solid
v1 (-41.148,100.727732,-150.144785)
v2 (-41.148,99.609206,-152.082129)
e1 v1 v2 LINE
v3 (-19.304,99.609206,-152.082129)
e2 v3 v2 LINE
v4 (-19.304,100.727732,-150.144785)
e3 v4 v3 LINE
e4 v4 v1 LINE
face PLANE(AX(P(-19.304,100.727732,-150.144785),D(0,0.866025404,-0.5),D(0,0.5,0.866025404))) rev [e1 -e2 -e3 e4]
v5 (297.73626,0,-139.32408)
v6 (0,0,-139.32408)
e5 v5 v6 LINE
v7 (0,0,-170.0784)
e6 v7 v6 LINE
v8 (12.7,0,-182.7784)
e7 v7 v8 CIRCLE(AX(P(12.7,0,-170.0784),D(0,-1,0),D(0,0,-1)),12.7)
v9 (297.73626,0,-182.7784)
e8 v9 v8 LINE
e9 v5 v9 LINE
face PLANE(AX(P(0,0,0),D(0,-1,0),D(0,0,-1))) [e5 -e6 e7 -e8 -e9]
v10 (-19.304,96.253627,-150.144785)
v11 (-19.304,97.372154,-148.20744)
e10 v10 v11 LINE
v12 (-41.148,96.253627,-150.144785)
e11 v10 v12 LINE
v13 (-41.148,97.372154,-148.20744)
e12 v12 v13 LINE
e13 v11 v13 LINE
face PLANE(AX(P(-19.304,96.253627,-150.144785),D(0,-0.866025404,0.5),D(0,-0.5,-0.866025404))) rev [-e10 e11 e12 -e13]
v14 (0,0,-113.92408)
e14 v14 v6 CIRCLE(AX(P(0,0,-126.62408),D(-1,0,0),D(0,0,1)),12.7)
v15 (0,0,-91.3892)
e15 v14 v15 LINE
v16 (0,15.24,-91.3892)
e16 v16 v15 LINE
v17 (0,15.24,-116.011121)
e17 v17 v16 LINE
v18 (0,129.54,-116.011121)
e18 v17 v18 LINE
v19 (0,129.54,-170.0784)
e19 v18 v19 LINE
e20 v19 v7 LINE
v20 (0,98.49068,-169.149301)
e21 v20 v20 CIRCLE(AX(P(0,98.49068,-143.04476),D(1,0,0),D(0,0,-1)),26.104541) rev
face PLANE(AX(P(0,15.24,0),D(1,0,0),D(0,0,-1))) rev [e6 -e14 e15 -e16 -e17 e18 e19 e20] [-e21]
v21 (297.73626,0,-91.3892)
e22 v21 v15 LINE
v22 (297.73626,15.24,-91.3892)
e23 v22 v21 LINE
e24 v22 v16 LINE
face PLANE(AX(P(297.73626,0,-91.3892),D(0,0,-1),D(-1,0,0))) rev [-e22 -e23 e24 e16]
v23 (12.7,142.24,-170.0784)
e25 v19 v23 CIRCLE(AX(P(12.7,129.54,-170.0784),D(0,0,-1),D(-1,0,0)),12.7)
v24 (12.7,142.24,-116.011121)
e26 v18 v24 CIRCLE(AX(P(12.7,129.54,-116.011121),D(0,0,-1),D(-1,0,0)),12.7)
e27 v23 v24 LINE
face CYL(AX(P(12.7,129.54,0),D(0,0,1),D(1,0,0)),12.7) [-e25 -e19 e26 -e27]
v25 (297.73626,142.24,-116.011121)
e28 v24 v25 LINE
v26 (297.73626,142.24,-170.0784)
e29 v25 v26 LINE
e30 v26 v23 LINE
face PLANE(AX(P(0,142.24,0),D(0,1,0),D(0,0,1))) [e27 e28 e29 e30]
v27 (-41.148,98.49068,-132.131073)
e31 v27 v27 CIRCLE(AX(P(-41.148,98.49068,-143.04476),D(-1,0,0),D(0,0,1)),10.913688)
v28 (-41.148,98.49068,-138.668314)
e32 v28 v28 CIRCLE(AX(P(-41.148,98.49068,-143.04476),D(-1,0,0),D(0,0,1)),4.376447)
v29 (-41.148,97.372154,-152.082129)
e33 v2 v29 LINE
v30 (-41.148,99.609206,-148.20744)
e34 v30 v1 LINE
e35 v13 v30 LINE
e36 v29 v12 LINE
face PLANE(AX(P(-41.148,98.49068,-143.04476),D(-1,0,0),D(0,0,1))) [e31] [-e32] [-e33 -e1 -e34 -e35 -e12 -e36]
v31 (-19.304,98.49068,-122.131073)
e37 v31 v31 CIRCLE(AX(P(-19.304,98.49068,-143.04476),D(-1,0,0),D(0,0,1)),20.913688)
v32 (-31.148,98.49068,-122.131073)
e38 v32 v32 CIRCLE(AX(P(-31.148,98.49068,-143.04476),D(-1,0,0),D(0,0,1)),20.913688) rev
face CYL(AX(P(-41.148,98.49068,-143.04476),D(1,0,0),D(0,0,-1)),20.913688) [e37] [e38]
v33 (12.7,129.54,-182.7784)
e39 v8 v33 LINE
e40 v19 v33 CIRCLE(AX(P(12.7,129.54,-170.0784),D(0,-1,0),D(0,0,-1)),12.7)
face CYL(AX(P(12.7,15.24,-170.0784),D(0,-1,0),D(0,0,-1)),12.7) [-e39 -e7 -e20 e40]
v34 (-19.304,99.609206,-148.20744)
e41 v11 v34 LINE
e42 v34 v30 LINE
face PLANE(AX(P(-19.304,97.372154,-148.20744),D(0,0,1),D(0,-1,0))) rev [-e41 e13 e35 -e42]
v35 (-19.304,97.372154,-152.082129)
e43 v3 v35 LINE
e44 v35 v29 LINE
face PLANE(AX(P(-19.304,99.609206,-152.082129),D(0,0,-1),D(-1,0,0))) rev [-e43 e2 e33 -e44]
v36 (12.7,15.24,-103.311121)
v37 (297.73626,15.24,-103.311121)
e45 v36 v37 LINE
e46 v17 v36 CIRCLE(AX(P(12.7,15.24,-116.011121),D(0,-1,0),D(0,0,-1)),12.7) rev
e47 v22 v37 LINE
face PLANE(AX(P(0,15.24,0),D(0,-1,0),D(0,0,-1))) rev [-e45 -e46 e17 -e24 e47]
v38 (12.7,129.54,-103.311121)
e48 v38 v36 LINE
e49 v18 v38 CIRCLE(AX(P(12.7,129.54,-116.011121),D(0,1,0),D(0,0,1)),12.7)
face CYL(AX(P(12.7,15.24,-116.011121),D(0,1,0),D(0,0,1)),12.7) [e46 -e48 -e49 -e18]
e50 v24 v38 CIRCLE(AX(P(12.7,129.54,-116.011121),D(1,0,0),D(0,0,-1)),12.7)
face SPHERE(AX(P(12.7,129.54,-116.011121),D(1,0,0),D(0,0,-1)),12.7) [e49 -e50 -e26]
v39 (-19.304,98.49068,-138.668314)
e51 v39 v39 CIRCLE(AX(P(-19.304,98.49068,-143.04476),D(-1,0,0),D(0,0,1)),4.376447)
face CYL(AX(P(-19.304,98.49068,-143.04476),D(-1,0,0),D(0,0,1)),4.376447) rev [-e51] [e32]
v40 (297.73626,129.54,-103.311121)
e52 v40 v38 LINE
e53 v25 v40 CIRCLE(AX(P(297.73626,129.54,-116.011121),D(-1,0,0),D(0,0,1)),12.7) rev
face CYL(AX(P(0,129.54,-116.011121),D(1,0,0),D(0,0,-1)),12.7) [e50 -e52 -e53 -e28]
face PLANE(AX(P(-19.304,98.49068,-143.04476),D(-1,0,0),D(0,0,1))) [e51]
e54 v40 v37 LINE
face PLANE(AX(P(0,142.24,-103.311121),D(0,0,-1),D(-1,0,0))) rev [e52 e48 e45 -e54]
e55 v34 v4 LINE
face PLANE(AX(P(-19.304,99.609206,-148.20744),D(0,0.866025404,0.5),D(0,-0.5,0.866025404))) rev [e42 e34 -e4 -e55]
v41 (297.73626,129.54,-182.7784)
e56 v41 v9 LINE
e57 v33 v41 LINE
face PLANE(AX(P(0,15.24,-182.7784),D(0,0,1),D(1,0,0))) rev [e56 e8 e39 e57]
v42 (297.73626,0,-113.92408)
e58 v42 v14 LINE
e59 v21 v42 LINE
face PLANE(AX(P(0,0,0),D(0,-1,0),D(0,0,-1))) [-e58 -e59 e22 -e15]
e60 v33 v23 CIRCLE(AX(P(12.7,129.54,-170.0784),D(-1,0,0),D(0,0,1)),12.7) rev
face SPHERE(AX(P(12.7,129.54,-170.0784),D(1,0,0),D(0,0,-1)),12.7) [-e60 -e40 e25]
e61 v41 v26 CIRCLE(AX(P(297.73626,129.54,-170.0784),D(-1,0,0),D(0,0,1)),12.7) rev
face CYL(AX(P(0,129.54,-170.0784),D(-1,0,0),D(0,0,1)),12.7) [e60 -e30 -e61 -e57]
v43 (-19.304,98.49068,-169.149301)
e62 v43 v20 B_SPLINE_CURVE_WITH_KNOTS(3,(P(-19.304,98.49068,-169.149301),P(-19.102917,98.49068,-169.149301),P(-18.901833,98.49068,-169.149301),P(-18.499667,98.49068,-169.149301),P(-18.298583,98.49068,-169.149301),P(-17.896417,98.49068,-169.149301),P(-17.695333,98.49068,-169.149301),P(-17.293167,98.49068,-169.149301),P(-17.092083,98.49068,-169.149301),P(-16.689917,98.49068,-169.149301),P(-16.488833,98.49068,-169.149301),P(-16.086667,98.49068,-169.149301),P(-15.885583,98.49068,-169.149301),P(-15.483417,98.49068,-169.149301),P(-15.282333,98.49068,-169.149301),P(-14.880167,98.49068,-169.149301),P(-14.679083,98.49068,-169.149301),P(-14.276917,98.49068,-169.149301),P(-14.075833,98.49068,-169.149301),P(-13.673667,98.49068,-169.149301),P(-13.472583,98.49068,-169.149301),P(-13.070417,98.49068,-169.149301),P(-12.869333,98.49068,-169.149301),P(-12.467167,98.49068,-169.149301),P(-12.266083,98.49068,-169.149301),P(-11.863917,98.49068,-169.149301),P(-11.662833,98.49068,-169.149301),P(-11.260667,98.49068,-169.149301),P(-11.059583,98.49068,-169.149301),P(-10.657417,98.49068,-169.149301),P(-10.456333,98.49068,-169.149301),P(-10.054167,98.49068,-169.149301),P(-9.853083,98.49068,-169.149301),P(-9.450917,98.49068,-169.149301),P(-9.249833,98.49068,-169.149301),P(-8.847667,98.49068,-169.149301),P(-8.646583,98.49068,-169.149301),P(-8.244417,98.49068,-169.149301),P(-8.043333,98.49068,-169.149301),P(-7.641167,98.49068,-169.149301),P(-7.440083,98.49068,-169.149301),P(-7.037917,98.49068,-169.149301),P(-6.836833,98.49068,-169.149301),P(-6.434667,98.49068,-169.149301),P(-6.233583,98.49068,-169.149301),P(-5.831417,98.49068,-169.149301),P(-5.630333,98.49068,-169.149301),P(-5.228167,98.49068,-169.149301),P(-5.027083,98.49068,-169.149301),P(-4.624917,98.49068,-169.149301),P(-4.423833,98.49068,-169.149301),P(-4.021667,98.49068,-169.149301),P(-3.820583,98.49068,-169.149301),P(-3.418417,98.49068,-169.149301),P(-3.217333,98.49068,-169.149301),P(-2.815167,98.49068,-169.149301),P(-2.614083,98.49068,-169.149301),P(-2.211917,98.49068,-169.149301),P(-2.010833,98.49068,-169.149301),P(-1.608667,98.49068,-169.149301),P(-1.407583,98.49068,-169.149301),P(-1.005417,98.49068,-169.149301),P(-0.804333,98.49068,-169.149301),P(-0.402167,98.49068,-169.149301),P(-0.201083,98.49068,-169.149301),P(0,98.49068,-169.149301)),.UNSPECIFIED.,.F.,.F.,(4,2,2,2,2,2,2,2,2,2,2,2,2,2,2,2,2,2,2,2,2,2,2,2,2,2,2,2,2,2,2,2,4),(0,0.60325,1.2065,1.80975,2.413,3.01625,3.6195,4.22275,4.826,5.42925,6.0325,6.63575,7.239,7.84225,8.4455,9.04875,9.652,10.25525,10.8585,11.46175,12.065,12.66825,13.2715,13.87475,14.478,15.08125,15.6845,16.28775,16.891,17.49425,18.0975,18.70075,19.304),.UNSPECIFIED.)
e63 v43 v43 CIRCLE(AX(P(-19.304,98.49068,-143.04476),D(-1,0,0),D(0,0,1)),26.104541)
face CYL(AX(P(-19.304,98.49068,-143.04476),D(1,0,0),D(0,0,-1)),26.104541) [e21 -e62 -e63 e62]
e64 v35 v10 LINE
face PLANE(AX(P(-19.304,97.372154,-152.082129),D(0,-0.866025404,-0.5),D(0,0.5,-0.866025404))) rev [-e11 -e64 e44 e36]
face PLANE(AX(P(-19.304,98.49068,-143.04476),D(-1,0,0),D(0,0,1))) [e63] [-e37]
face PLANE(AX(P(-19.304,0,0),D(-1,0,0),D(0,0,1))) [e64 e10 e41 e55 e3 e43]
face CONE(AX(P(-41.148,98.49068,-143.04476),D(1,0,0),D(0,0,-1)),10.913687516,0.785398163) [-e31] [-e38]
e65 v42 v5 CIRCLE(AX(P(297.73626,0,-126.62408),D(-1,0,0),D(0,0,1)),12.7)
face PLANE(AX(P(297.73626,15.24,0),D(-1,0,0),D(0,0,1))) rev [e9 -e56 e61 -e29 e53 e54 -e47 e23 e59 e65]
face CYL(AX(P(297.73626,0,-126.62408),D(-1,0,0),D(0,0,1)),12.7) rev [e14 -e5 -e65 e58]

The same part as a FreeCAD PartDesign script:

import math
import FreeCAD as App
import Part
import Sketcher

V = App.Vector
Q = App.Units.Quantity


def edges_at(feature, points):
    """Names of the edges that pass closest to the given points."""
    edges = feature.Shape.Edges
    near = lambda p: min(range(len(edges)), key=lambda i: edges[i].distToShape(Part.Vertex(*p))[0])
    return sorted({f"Edge{near(p) + 1}" for p in points})


def add_polygon(sketch, points):
    """Adds a closed chain of lines whose ends are joined by coincident constraints."""
    first, n = sketch.GeometryCount, len(points)
    for a, b in zip(points, points[1:] + points[:1]):
        sketch.addGeometry(Part.LineSegment(App.Vector(*a, 0), App.Vector(*b, 0)), False)
    for i in range(n):
        sketch.addConstraint(Sketcher.Constraint("Coincident", first + i, 2, first + (i + 1) % n, 1))

doc = App.newDocument("Part")
body = doc.addObject("PartDesign::Body", "Body")

# Sketch on XZ plane
sketch1 = doc.addObject("Sketcher::SketchObject", "Sketch")
body.addObject(sketch1)
sketch1.AttachmentSupport = (doc.XZ_Plane, [""])
sketch1.MapMode = "FlatFace"
add_polygon(sketch1, [(0, -182.7784), (0, 0), (297.73626, 0), (297.73626, -182.7784)])  # lines 0-3
sketch1.addConstraint(Sketcher.Constraint("Vertical", 0))
sketch1.addConstraint(Sketcher.Constraint("Horizontal", 1))
sketch1.addConstraint(Sketcher.Constraint("Vertical", 2))
sketch1.addConstraint(Sketcher.Constraint("Horizontal", 3))
sketch1.addConstraint(Sketcher.Constraint("Coincident", 0, 2, -1, 1))
sketch1.addConstraint(Sketcher.Constraint("DistanceY", 0, 1, 0, 2, Q("7.196 in")))
sketch1.addConstraint(Sketcher.Constraint("DistanceX", 1, 1, 1, 2, Q("11.7219 in")))
pad1 = doc.addObject("PartDesign::Pad", "Pad")
body.addObject(pad1)
pad1.Profile = sketch1
pad1.Length = Q("0.6 in")
pad1.Reversed = True

# Sketch on YZ plane
sketch2 = doc.addObject("Sketcher::SketchObject", "Sketch001")
body.addObject(sketch2)
sketch2.AttachmentSupport = (doc.YZ_Plane, [""])
sketch2.MapMode = "FlatFace"
sketch2.addGeometry(Part.ArcOfCircle(Part.Circle(V(0, -56.15432, 0), V(0, 0, 1), 12.7), math.radians(-90), math.radians(90)), False)
sketch2.addGeometry(Part.LineSegment(V(0, -68.85432, 0), V(0, -43.45432, 0)), False)
sketch2.addGeometry(Part.ArcOfCircle(Part.Circle(V(0, -126.62408, 0), V(0, 0, 1), 12.7), math.radians(-90), math.radians(90)), False)
sketch2.addGeometry(Part.LineSegment(V(0, -139.32408, 0), V(0, -113.92408, 0)), False)
sketch2.addConstraint(Sketcher.Constraint("Coincident", 0, 1, 1, 1))
sketch2.addConstraint(Sketcher.Constraint("Coincident", 1, 2, 0, 2))
sketch2.addConstraint(Sketcher.Constraint("Coincident", 2, 1, 3, 1))
sketch2.addConstraint(Sketcher.Constraint("Coincident", 3, 2, 2, 2))
sketch2.addConstraint(Sketcher.Constraint("Vertical", 1))
sketch2.addConstraint(Sketcher.Constraint("Vertical", 3))
sketch2.addConstraint(Sketcher.Constraint("Equal", 0, 2))
sketch2.addConstraint(Sketcher.Constraint("PointOnObject", 0, 3, -2))
sketch2.addConstraint(Sketcher.Constraint("PointOnObject", 2, 3, -2))
sketch2.addConstraint(Sketcher.Constraint("PointOnObject", 0, 1, -2))
sketch2.addConstraint(Sketcher.Constraint("PointOnObject", 2, 1, -2))
sketch2.addConstraint(Sketcher.Constraint("Radius", 0, Q("0.5 in")))
sketch2.addConstraint(Sketcher.Constraint("DistanceY", 0, 3, -1, 1, Q("2.2108 in")))
sketch2.addConstraint(Sketcher.Constraint("DistanceY", 2, 3, -1, 1, Q("4.9852 in")))
pocket1 = doc.addObject("PartDesign::Pocket", "Pocket")
body.addObject(pocket1)
pocket1.Profile = sketch2
pocket1.Type = "ThroughAll"
pocket1.Reversed = True

# Sketch on YZ plane
sketch3 = doc.addObject("Sketcher::SketchObject", "Sketch002")
body.addObject(sketch3)
sketch3.AttachmentSupport = (doc.YZ_Plane, [""])
sketch3.MapMode = "FlatFace"
add_polygon(sketch3, [(15.24, -91.3892), (0, -91.3892), (0, 0), (15.24, 0)])  # lines 0-3
sketch3.addConstraint(Sketcher.Constraint("Horizontal", 0))
sketch3.addConstraint(Sketcher.Constraint("Vertical", 1))
sketch3.addConstraint(Sketcher.Constraint("Horizontal", 2))
sketch3.addConstraint(Sketcher.Constraint("Vertical", 3))
sketch3.addConstraint(Sketcher.Constraint("Coincident", 1, 2, -1, 1))
sketch3.addConstraint(Sketcher.Constraint("DistanceX", 0, 2, 0, 1, Q("0.6 in")))
sketch3.addConstraint(Sketcher.Constraint("DistanceY", 1, 1, 1, 2, Q("3.598 in")))
pocket2 = doc.addObject("PartDesign::Pocket", "Pocket001")
body.addObject(pocket2)
pocket2.Profile = sketch3
pocket2.Type = "ThroughAll"
pocket2.Reversed = True

# Sketch on XZ plane
sketch4 = doc.addObject("Sketcher::SketchObject", "Sketch003")
body.addObject(sketch4)
sketch4.AttachmentSupport = (doc.XZ_Plane, [""])
sketch4.MapMode = "FlatFace"
sketch4.AttachmentOffset = App.Placement(V(0, 0, -0.6 * 25.4), App.Rotation())
add_polygon(sketch4, [(0, -182.7784), (0, -103.311121), (297.73626, -103.311121), (297.73626, -182.7784)])  # lines 0-3
sketch4.addConstraint(Sketcher.Constraint("Vertical", 0))
sketch4.addConstraint(Sketcher.Constraint("Horizontal", 1))
sketch4.addConstraint(Sketcher.Constraint("Vertical", 2))
sketch4.addConstraint(Sketcher.Constraint("Horizontal", 3))
sketch4.addConstraint(Sketcher.Constraint("PointOnObject", 0, 2, -2))
sketch4.addConstraint(Sketcher.Constraint("DistanceX", 1, 1, 1, 2, Q("11.7219 in")))
sketch4.addConstraint(Sketcher.Constraint("DistanceY", 2, 2, -1, 1, Q("7.196 in")))
sketch4.addConstraint(Sketcher.Constraint("DistanceY", 0, 1, 0, 2, Q("79.467279 mm")))
pad2 = doc.addObject("PartDesign::Pad", "Pad001")
body.addObject(pad2)
pad2.Profile = sketch4
pad2.Length = Q("5 in")
pad2.Reversed = True
doc.recompute()

fillet = doc.addObject("PartDesign::Fillet", "Fillet")
body.addObject(fillet)
fillet.Base = (pad2, edges_at(pad2, [(148.868, 142.24, -103.311)]))
fillet.Radius = Q("0.5 in")
doc.recompute()

fillet2 = doc.addObject("PartDesign::Fillet", "Fillet001")
body.addObject(fillet2)
fillet2.Base = (fillet, edges_at(fillet, [(148.868, 142.24, -182.778)]))
fillet2.Radius = Q("0.5 in")
doc.recompute()

fillet3 = doc.addObject("PartDesign::Fillet", "Fillet002")
body.addObject(fillet3)
fillet3.Base = (fillet2, edges_at(fillet2, [
    (0, 72.39, -103.311),
    (0, 138.52, -107.031),
    (0, 64.77, -182.778),
    (0, 142.24, -143.045),
    (0, 138.52, -179.059),
]))
fillet3.Radius = Q("0.5 in")

# Sketch on YZ plane
sketch5 = doc.addObject("Sketcher::SketchObject", "Sketch004")
body.addObject(sketch5)
sketch5.AttachmentSupport = (doc.YZ_Plane, [""])
sketch5.MapMode = "FlatFace"
sketch5.addGeometry(Part.Circle(V(98.49068, -143.04476, 0), V(0, 0, 1), 26.104541), False)
sketch5.addConstraint(Sketcher.Constraint("Diameter", 0, Q("52.209082 mm")))
sketch5.addConstraint(Sketcher.Constraint("DistanceX", -1, 1, 0, 3, Q("98.49068 mm")))
sketch5.addConstraint(Sketcher.Constraint("DistanceY", 0, 3, -1, 1, Q("143.04476 mm")))
pad3 = doc.addObject("PartDesign::Pad", "Pad002")
body.addObject(pad3)
pad3.Profile = sketch5
pad3.Length = Q("0.76 in")
pad3.Reversed = True

# Sketch on YZ plane
sketch6 = doc.addObject("Sketcher::SketchObject", "Sketch005")
body.addObject(sketch6)
sketch6.AttachmentSupport = (doc.YZ_Plane, [""])
sketch6.MapMode = "FlatFace"
sketch6.AttachmentOffset = App.Placement(V(0, 0, -0.76 * 25.4), App.Rotation())
sketch6.addGeometry(Part.Circle(V(98.49068, -143.04476, 0), V(0, 0, 1), 20.913688), False)
sketch6.addConstraint(Sketcher.Constraint("Diameter", 0, Q("41.827375 mm")))
sketch6.addConstraint(Sketcher.Constraint("DistanceX", -1, 1, 0, 3, Q("98.49068 mm")))
sketch6.addConstraint(Sketcher.Constraint("DistanceY", 0, 3, -1, 1, Q("143.04476 mm")))
pad4 = doc.addObject("PartDesign::Pad", "Pad003")
body.addObject(pad4)
pad4.Profile = sketch6
pad4.Length = Q("0.86 in")
pad4.Reversed = True
doc.recompute()

chamfer = doc.addObject("PartDesign::Chamfer", "Chamfer")
body.addObject(chamfer)
chamfer.Base = (pad4, edges_at(pad4, [(-41.148, 98.491, -163.958)]))
chamfer.Size = 10

# Sketch on YZ plane
sketch7 = doc.addObject("Sketcher::SketchObject", "Sketch006")
body.addObject(sketch7)
sketch7.AttachmentSupport = (doc.YZ_Plane, [""])
sketch7.MapMode = "FlatFace"
sketch7.AttachmentOffset = App.Placement(V(0, 0, -1.62 * 25.4), App.Rotation())
sketch7.addGeometry(Part.Circle(V(98.49068, -143.04476, 0), V(0, 0, 1), 4.376447), False)  # 0
add_polygon(sketch7, [(100.727732, -150.144785), (99.609206, -152.082129), (97.372154, -152.082129), (96.253627, -150.144785), (97.372154, -148.20744), (99.609206, -148.20744)])  # lines 1-6
sketch7.addConstraint(Sketcher.Constraint("Horizontal", 2))
sketch7.addConstraint(Sketcher.Constraint("Horizontal", 5))
sketch7.addConstraint(Sketcher.Constraint("Parallel", 1, 4))
sketch7.addConstraint(Sketcher.Constraint("Parallel", 3, 6))
sketch7.addConstraint(Sketcher.Constraint("Horizontal", 3, 2, 6, 2))
sketch7.addConstraint(Sketcher.Constraint("Vertical", 2, 2, 4, 2))
sketch7.addConstraint(Sketcher.Constraint("Vertical", 1, 2, 5, 2))
sketch7.addConstraint(Sketcher.Constraint("Angle", 1, Q("-120 deg")))
sketch7.addConstraint(Sketcher.Constraint("Diameter", 0, Q("8.752893 mm")))
sketch7.addConstraint(Sketcher.Constraint("DistanceX", 2, 2, 2, 1, Q("2.237052 mm")))
sketch7.addConstraint(Sketcher.Constraint("DistanceX", -1, 1, 0, 3, Q("98.49068 mm")))
sketch7.addConstraint(Sketcher.Constraint("DistanceY", 0, 3, -1, 1, Q("143.04476 mm")))
sketch7.addConstraint(Sketcher.Constraint("DistanceY", 1, 2, -1, 1, Q("152.082129 mm")))
sketch7.addConstraint(Sketcher.Constraint("DistanceY", 4, 2, -1, 1, Q("148.20744 mm")))
sketch7.addConstraint(Sketcher.Constraint("DistanceX", -1, 1, 1, 2, Q("99.609206 mm")))
pocket3 = doc.addObject("PartDesign::Pocket", "Pocket002")
body.addObject(pocket3)
pocket3.Profile = sketch7
pocket3.Length = Q("0.86 in")
pocket3.Reversed = True

doc.recompute()
